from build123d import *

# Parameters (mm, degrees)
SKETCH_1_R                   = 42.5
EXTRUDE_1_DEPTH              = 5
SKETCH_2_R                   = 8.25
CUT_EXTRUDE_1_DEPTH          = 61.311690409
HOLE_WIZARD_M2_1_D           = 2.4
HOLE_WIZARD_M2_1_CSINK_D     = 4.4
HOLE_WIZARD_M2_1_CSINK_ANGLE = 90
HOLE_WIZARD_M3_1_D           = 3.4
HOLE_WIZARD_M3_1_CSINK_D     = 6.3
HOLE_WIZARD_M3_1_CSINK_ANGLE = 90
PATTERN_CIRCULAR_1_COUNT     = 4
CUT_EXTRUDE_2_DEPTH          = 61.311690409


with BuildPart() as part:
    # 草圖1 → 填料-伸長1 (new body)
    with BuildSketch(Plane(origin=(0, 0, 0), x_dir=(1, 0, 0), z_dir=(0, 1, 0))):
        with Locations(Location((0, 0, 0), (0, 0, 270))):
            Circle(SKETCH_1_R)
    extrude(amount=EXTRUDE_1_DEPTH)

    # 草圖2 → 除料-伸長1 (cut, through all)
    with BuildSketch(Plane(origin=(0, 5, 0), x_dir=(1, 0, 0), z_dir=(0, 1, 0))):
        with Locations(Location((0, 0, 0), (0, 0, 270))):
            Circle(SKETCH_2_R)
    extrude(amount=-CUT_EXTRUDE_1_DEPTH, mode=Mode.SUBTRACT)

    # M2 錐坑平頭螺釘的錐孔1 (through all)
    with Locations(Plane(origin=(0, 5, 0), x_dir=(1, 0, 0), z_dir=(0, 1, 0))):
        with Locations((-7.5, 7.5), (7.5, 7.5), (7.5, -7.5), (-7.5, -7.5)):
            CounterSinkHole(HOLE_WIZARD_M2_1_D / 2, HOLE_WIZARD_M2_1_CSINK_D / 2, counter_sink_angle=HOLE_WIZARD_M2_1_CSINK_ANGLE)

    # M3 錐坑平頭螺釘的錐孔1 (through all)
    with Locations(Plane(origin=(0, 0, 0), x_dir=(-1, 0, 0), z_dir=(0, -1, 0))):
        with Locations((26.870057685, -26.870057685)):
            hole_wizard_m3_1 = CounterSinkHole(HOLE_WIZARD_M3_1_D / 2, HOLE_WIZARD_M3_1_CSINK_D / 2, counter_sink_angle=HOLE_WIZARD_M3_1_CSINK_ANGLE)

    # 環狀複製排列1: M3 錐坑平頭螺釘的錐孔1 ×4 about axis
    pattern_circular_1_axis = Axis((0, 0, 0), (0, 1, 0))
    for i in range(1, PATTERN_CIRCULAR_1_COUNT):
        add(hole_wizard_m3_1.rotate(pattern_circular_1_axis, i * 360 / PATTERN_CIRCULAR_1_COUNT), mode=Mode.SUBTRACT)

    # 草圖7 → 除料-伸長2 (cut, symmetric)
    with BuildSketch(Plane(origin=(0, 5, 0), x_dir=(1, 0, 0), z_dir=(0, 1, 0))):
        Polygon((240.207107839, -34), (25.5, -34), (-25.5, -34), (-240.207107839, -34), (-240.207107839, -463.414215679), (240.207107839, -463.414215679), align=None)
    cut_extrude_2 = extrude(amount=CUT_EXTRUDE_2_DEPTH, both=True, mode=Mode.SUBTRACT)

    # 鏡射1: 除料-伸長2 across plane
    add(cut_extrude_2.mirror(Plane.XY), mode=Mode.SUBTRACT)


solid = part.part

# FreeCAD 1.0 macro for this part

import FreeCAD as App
import Part
import Sketcher

V = App.Vector
Q = App.Units.Quantity

doc = App.newDocument("Part")
body = doc.addObject("PartDesign::Body", "Body")

# Sketch on XZ plane
sketch1 = body.newObject("Sketcher::SketchObject", "Sketch")
sketch1.AttachmentSupport = (doc.getObject("XZ_Plane"), [""])
sketch1.MapMode = "FlatFace"
sketch1.addGeometry(Part.Circle(V(0, 0, 0), V(0, 0, 1), 42), False)
sketch1.addConstraint([
    Sketcher.Constraint("Coincident", 0, 3, -1, 1),
    Sketcher.Constraint("Diameter", 0, Q("85 mm")),
])
pad1 = body.newObject("PartDesign::Pad", "Pad")
pad1.Profile = sketch1
pad1.Length = 5
pad1.Reversed = True

# Sketch on XZ plane
sketch2 = body.newObject("Sketcher::SketchObject", "Sketch001")
sketch2.AttachmentSupport = (doc.getObject("XZ_Plane"), [""])
sketch2.MapMode = "FlatFace"
sketch2.AttachmentOffset = App.Placement(V(0, 0, -5), App.Rotation())
sketch2.addGeometry(Part.Circle(V(0, 0, 0), V(0, 0, 1), 8), False)
sketch2.addConstraint([
    Sketcher.Constraint("Coincident", 0, 3, -1, 1),
    Sketcher.Constraint("Diameter", 0, Q("16.5 mm")),
])
pocket1 = body.newObject("PartDesign::Pocket", "Pocket")
pocket1.Profile = sketch2
pocket1.Type = "ThroughAll"
pocket1.Reversed = True

# Sketch on XZ plane
sketch3 = body.newObject("Sketcher::SketchObject", "Sketch002")
sketch3.AttachmentSupport = (doc.getObject("XZ_Plane"), [""])
sketch3.MapMode = "FlatFace"
sketch3.AttachmentOffset = App.Placement(V(0, 0, -5), App.Rotation())
sketch3.addGeometry([
    Part.Circle(V(-7.5, -7.5, 0), V(0, 0, 1), 1.2),
    Part.Circle(V(7.5, -7.5, 0), V(0, 0, 1), 1.2),
    Part.Circle(V(7.5, 7.5, 0), V(0, 0, 1), 1.2),
    Part.Circle(V(-7.5, 7.5, 0), V(0, 0, 1), 1.2),
], False)
sketch3.addConstraint([
    Sketcher.Constraint("Equal", 0, 1),
    Sketcher.Constraint("Equal", 1, 2),
    Sketcher.Constraint("Equal", 2, 3),
    Sketcher.Constraint("Symmetric", 0, 3, 2, 3, -1, 1),
    Sketcher.Constraint("Symmetric", 1, 3, 3, 3, -1, 1),
    Sketcher.Constraint("Symmetric", 0, 3, 1, 3, -2),
    Sketcher.Constraint("Diameter", 0, Q("2.4 mm")),
    Sketcher.Constraint("DistanceX", 0, 3, 1, 3, Q("15 mm")),
    Sketcher.Constraint("DistanceY", 1, 3, 2, 3, Q("15 mm")),
])
doc.recompute()
hole = body.newObject("PartDesign::Hole", "Hole")
hole.Profile = sketch3
hole.ThreadType = "None"
hole.Diameter = 2.4
hole.DepthType = "ThroughAll"
hole.HoleCutType = "Countersink"
hole.HoleCutDiameter = 4.4
hole.HoleCutCountersinkAngle = 90
hole.Reversed = True

# Sketch on XZ plane
sketch4 = body.newObject("Sketcher::SketchObject", "Sketch003")
sketch4.AttachmentSupport = (doc.getObject("XZ_Plane"), [""])
sketch4.MapMode = "FlatFace"
sketch4.addGeometry(Part.Circle(V(-26.9, 26.9, 0), V(0, 0, 1), 1.7), False)
sketch4.addConstraint([
    Sketcher.Constraint("Diameter", 0, Q("3.4 mm")),
    Sketcher.Constraint("DistanceX", 0, 3, -1, 1, Q("26.870058 mm")),
    Sketcher.Constraint("DistanceY", -1, 1, 0, 3, Q("26.870058 mm")),
])
doc.recompute()
hole2 = body.newObject("PartDesign::Hole", "Hole001")
hole2.Profile = sketch4
hole2.ThreadType = "None"
hole2.Diameter = 3.4
hole2.DepthType = "ThroughAll"
hole2.HoleCutType = "Countersink"
hole2.HoleCutDiameter = 6.3
hole2.HoleCutCountersinkAngle = 90
doc.recompute()

polarpattern = body.newObject("PartDesign::PolarPattern", "PolarPattern")
polarpattern.Originals = [hole2]
polarpattern.Axis = (doc.getObject("Y_Axis"), [""])
polarpattern.Angle = 360
polarpattern.Occurrences = 4
body.Tip = polarpattern

# Sketch on XZ plane
sketch5 = body.newObject("Sketcher::SketchObject", "Sketch004")
sketch5.AttachmentSupport = (doc.getObject("XZ_Plane"), [""])
sketch5.MapMode = "FlatFace"
sketch5.AttachmentOffset = App.Placement(V(0, 0, -5), App.Rotation())
sketch5.addGeometry([
    Part.LineSegment(V(240, 34, 0), V(-240, 34, 0)),
    Part.LineSegment(V(-240, 34, 0), V(-240, 463, 0)),
    Part.LineSegment(V(-240, 463, 0), V(240, 463, 0)),
    Part.LineSegment(V(240, 463, 0), V(240, 34, 0)),
], False)
sketch5.addConstraint([
    Sketcher.Constraint("Coincident", 0, 2, 1, 1),
    Sketcher.Constraint("Coincident", 1, 2, 2, 1),
    Sketcher.Constraint("Coincident", 2, 2, 3, 1),
    Sketcher.Constraint("Coincident", 3, 2, 0, 1),
    Sketcher.Constraint("Horizontal", 0),
    Sketcher.Constraint("Vertical", 1),
    Sketcher.Constraint("Horizontal", 2),
    Sketcher.Constraint("Vertical", 3),
    Sketcher.Constraint("DistanceY", -1, 1, 0, 2, Q("34 mm")),
    Sketcher.Constraint("DistanceX", 0, 2, 0, 1, Q("480.414216 mm")),
    Sketcher.Constraint("DistanceY", 1, 1, 1, 2, Q("429.414216 mm")),
    Sketcher.Constraint("DistanceX", 0, 2, -1, 1, Q("240.207108 mm")),
])
pocket2 = body.newObject("PartDesign::Pocket", "Pocket001")
pocket2.Profile = sketch5
pocket2.Length = 122.623381
pocket2.Midplane = True
doc.recompute()

mirrored = body.newObject("PartDesign::Mirrored", "Mirrored")
mirrored.Originals = [pocket2]
mirrored.MirrorPlane = (doc.getObject("XY_Plane"), [""])
body.Tip = mirrored

doc.recompute()
